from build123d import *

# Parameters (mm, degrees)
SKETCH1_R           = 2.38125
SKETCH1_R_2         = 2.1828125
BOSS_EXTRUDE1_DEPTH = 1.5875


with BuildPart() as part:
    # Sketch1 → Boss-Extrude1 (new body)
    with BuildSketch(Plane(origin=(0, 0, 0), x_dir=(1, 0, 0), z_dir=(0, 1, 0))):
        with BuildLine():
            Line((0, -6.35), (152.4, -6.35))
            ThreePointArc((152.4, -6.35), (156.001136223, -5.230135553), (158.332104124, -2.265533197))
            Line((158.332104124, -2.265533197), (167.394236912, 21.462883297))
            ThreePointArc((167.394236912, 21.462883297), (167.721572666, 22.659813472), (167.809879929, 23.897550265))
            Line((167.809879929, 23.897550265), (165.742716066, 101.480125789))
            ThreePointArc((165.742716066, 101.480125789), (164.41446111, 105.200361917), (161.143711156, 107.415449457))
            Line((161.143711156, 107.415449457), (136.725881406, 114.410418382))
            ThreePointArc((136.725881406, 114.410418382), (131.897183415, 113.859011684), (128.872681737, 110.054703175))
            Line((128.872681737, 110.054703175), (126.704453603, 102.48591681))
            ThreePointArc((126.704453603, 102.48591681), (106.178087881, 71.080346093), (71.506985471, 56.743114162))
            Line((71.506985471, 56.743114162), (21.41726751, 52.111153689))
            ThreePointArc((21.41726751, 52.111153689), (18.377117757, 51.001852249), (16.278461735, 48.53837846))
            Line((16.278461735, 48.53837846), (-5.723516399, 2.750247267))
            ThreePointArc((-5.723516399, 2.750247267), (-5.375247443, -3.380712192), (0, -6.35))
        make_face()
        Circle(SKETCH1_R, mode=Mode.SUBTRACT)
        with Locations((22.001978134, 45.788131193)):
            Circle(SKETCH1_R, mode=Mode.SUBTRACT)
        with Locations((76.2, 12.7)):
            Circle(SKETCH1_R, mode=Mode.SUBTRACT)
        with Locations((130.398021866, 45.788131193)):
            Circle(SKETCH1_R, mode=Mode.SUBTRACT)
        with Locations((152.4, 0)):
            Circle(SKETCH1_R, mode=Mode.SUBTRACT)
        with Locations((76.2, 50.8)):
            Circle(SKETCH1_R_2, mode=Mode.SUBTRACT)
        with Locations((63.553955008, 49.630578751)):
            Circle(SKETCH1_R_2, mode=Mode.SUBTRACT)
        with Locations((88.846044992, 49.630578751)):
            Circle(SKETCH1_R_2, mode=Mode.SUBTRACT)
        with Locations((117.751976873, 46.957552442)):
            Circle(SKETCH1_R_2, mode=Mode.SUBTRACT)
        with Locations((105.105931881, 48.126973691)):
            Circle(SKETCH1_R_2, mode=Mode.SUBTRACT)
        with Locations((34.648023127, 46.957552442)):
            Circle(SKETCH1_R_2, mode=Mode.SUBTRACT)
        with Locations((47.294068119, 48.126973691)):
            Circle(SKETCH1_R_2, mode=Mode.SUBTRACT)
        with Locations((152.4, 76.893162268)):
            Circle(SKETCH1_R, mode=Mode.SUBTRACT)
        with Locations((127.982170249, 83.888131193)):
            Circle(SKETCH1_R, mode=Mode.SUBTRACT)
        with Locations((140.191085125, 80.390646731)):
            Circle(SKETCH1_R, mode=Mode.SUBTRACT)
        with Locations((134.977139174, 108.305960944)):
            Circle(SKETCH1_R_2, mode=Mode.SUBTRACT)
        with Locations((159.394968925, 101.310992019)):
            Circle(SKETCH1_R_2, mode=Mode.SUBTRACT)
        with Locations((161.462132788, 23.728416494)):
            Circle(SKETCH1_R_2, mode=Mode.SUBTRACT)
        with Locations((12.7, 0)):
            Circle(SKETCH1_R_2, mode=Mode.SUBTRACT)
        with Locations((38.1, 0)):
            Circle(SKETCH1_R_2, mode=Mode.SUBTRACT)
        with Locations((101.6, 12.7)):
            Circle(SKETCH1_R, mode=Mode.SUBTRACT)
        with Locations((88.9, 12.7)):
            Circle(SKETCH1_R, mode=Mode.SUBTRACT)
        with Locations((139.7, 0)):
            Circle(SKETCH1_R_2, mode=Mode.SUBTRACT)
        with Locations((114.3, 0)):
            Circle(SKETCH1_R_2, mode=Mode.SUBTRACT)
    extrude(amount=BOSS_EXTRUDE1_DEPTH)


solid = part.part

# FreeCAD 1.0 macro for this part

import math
import FreeCAD as App
import Part
import Sketcher

V = App.Vector
Q = App.Units.Quantity

doc = App.newDocument("Part")
body = doc.addObject("PartDesign::Body", "Body")

# Sketch on XZ plane
sketch1 = body.newObject("Sketcher::SketchObject", "Sketch")
sketch1.AttachmentSupport = (doc.getObject("XZ_Plane"), [""])
sketch1.MapMode = "FlatFace"
sketch1.addGeometry([
    Part.LineSegment(V(0, 6.3, 0), V(152.4, 6.3, 0)),  # 0
    Part.ArcOfCircle(Part.Circle(V(152.4, 0, 0), V(0, 0, 1), 6.4), math.radians(21), math.radians(90)),  # 1
    Part.LineSegment(V(158.3, 2.3, 0), V(167.4, -21.5, 0)),  # 2
    Part.ArcOfCircle(Part.Circle(V(161.5, -23.7, 0), V(0, 0, 1), 6.3), math.radians(-2), math.radians(21)),  # 3
    Part.LineSegment(V(167.8, -23.9, 0), V(165.7, -101.5, 0)),  # 4
    Part.ArcOfCircle(Part.Circle(V(159.4, -101.3, 0), V(0, 0, 1), 6.4), math.radians(-74), math.radians(-2)),  # 5
    Part.LineSegment(V(161.1, -107.4, 0), V(136.7, -114.4, 0)),  # 6
    Part.ArcOfCircle(Part.Circle(V(135, -108.3, 0), V(0, 0, 1), 6.3), math.radians(-164), math.radians(-74)),  # 7
    Part.LineSegment(V(128.9, -110.1, 0), V(126.7, -102.5, 0)),  # 8
    Part.ArcOfCircle(Part.Circle(V(65.7, -120, 0), V(0, 0, 1), 63.5), math.radians(16), math.radians(85)),  # 9
    Part.LineSegment(V(71.5, -56.7, 0), V(21.4, -52.1, 0)),  # 10
    Part.ArcOfCircle(Part.Circle(V(22, -45.8, 0), V(0, 0, 1), 6.3), math.radians(-154), math.radians(-95)),  # 11
    Part.LineSegment(V(16.3, -48.5, 0), V(-5.7, -2.8, 0)),  # 12
    Part.ArcOfCircle(Part.Circle(V(0, 0, 0), V(0, 0, 1), 6.3), math.radians(90), math.radians(206)),  # 13
    Part.Circle(V(0, 0, 0), V(0, 0, 1), 2.4),  # 14
    Part.Circle(V(12.7, 0, 0), V(0, 0, 1), 2.2),  # 15
    Part.Circle(V(38.1, 0, 0), V(0, 0, 1), 2.2),  # 16
    Part.Circle(V(76.2, -12.7, 0), V(0, 0, 1), 2.4),  # 17
    Part.Circle(V(22, -45.8, 0), V(0, 0, 1), 2.4),  # 18
    Part.Circle(V(34.6, -47, 0), V(0, 0, 1), 2.2),  # 19
    Part.Circle(V(47.3, -48.1, 0), V(0, 0, 1), 2.2),  # 20
    Part.Circle(V(63.6, -49.6, 0), V(0, 0, 1), 2.2),  # 21
    Part.Circle(V(76.2, -50.8, 0), V(0, 0, 1), 2.2),  # 22
    Part.Circle(V(114.3, 0, 0), V(0, 0, 1), 2.2),  # 23
    Part.Circle(V(88.9, -12.7, 0), V(0, 0, 1), 2.4),  # 24
    Part.Circle(V(101.6, -12.7, 0), V(0, 0, 1), 2.4),  # 25
    Part.Circle(V(139.7, 0, 0), V(0, 0, 1), 2.2),  # 26
    Part.Circle(V(152.4, 0, 0), V(0, 0, 1), 2.4),  # 27
    Part.Circle(V(161.5, -23.7, 0), V(0, 0, 1), 2.2),  # 28
    Part.Circle(V(88.8, -49.6, 0), V(0, 0, 1), 2.2),  # 29
    Part.Circle(V(117.8, -47, 0), V(0, 0, 1), 2.2),  # 30
    Part.Circle(V(105.1, -48.1, 0), V(0, 0, 1), 2.2),  # 31
    Part.Circle(V(130.4, -45.8, 0), V(0, 0, 1), 2.4),  # 32
    Part.Circle(V(140.2, -80.4, 0), V(0, 0, 1), 2.4),  # 33
    Part.Circle(V(152.4, -76.9, 0), V(0, 0, 1), 2.4),  # 34
    Part.Circle(V(128, -83.9, 0), V(0, 0, 1), 2.4),  # 35
    Part.Circle(V(135, -108.3, 0), V(0, 0, 1), 2.2),  # 36
    Part.Circle(V(159.4, -101.3, 0), V(0, 0, 1), 2.2),  # 37
], False)
sketch1.addConstraint([
    Sketcher.Constraint("Tangent", 0, 2, 1, 2),
    Sketcher.Constraint("Tangent", 1, 1, 2, 1),
    Sketcher.Constraint("Tangent", 2, 2, 3, 2),
    Sketcher.Constraint("Tangent", 3, 1, 4, 1),
    Sketcher.Constraint("Tangent", 4, 2, 5, 2),
    Sketcher.Constraint("Tangent", 5, 1, 6, 1),
    Sketcher.Constraint("Tangent", 6, 2, 7, 2),
    Sketcher.Constraint("Tangent", 7, 1, 8, 1),
    Sketcher.Constraint("Tangent", 8, 2, 9, 1),
    Sketcher.Constraint("Tangent", 9, 2, 10, 1),
    Sketcher.Constraint("Tangent", 10, 2, 11, 2),
    Sketcher.Constraint("Tangent", 11, 1, 12, 1),
    Sketcher.Constraint("Tangent", 12, 2, 13, 2),
    Sketcher.Constraint("Tangent", 13, 1, 0, 1),
    Sketcher.Constraint("Horizontal", 0),
    Sketcher.Constraint("Coincident", 13, 3, -1, 1),
    Sketcher.Constraint("Coincident", 14, 3, -1, 1),
    Sketcher.Constraint("Coincident", 18, 3, 11, 3),
    Sketcher.Constraint("Coincident", 27, 3, 1, 3),
    Sketcher.Constraint("Coincident", 28, 3, 3, 3),
    Sketcher.Constraint("Coincident", 36, 3, 7, 3),
    Sketcher.Constraint("Coincident", 37, 3, 5, 3),
    Sketcher.Constraint("Equal", 1, 3),
    Sketcher.Constraint("Equal", 3, 5),
    Sketcher.Constraint("Equal", 5, 7),
    Sketcher.Constraint("Equal", 7, 11),
    Sketcher.Constraint("Equal", 11, 13),
    Sketcher.Constraint("Equal", 15, 16),
    Sketcher.Constraint("Equal", 14, 17),
    Sketcher.Constraint("Equal", 17, 18),
    Sketcher.Constraint("Equal", 16, 19),
    Sketcher.Constraint("Equal", 19, 20),
    Sketcher.Constraint("Equal", 20, 21),
    Sketcher.Constraint("Equal", 21, 22),
    Sketcher.Constraint("Equal", 22, 23),
    Sketcher.Constraint("Equal", 18, 24),
    Sketcher.Constraint("Equal", 24, 25),
    Sketcher.Constraint("Equal", 23, 26),
    Sketcher.Constraint("Equal", 25, 27),
    Sketcher.Constraint("Equal", 26, 28),
    Sketcher.Constraint("Equal", 28, 29),
    Sketcher.Constraint("Equal", 29, 30),
    Sketcher.Constraint("Equal", 30, 31),
    Sketcher.Constraint("Equal", 27, 32),
    Sketcher.Constraint("Equal", 32, 33),
    Sketcher.Constraint("Equal", 33, 34),
    Sketcher.Constraint("Equal", 34, 35),
    Sketcher.Constraint("Equal", 31, 36),
    Sketcher.Constraint("Equal", 36, 37),
    Sketcher.Constraint("PointOnObject", 15, 3, -1),
    Sketcher.Constraint("PointOnObject", 16, 3, -1),
    Sketcher.Constraint("PointOnObject", 23, 3, -1),
    Sketcher.Constraint("PointOnObject", 26, 3, -1),
    Sketcher.Constraint("Perpendicular", 6, 8),
    Sketcher.Constraint("Horizontal", 17, 3, 24, 3),
    Sketcher.Constraint("Horizontal", 24, 3, 25, 3),
    Sketcher.Constraint("Horizontal", 21, 3, 29, 3),
    Sketcher.Constraint("Horizontal", 19, 3, 30, 3),
    Sketcher.Constraint("Horizontal", 20, 3, 31, 3),
    Sketcher.Constraint("Horizontal", 18, 3, 32, 3),
    Sketcher.Constraint("Vertical", 17, 3, 22, 3),
    Sketcher.Constraint("Vertical", 27, 3, 34, 3),
    Sketcher.Constraint("Equal", 2, 6),
    Sketcher.Constraint("Radius", 9, Q("2.5 in")),
    Sketcher.Constraint("DistanceX", 0, 1, 0, 2, Q("6 in")),
    Sketcher.Constraint("Radius", 1, Q("0.25 in")),
    Sketcher.Constraint("Distance", 2, Q("1 in")),
    Sketcher.Constraint("Distance", 12, Q("2 in")),
    Sketcher.Constraint("Diameter", 14, Q("0.1875 in")),
    Sketcher.Constraint("Diameter", 15, Q("0.171875 in")),
    Sketcher.Constraint("DistanceX", -1, 1, 17, 3, Q("3 in")),
    Sketcher.Constraint("DistanceY", 22, 3, -1, 1, Q("2 in")),
    Sketcher.Constraint("DistanceX", -1, 1, 25, 3, Q("4 in")),
    Sketcher.Constraint("DistanceX", 15, 3, 16, 3, Q("1 in")),
    Sketcher.Constraint("DistanceX", 24, 3, 23, 3, Q("1 in")),
    Sketcher.Constraint("DistanceX", 16, 3, 24, 3, Q("2 in")),
    Sketcher.Constraint("DistanceX", 23, 3, 26, 3, Q("1 in")),
    Sketcher.Constraint("DistanceX", -1, 1, 15, 3, Q("0.5 in")),
    Sketcher.Constraint("DistanceY", 17, 3, -1, 1, Q("0.5 in")),
    Sketcher.Constraint("DistanceY", 35, 3, 32, 3, Q("1.5 in")),
    Sketcher.Constraint("DistanceX", 11, 3, 9, 3, 43.657901),
    Sketcher.Constraint("DistanceY", 7, 3, 34, 3, 31.412799),
    Sketcher.Constraint("DistanceX", 35, 3, 5, 3, 31.412799),
    Sketcher.Constraint("DistanceX", 7, 1, 6, 2, 7.8532),
    Sketcher.Constraint("DistanceY", 6, 2, 8, 2, 11.924502),
    Sketcher.Constraint("DistanceY", 10, 2, 19, 3, 5.153601),
    Sketcher.Constraint("DistanceX", 10, 2, 20, 3, 25.876801),
    Sketcher.Constraint("Distance", 4, 77.61011),
    Sketcher.Constraint("Distance", 10, 50.303428),
    Sketcher.Constraint("DistanceX", -1, 1, 5, 3, 159.394969),
    Sketcher.Constraint("DistanceY", 21, 3, -1, 1, 49.630579),
    Sketcher.Constraint("DistanceX", -1, 1, 31, 3, 105.105932),
    Sketcher.Constraint("DistanceX", -1, 1, 32, 3, 130.398022),
    Sketcher.Constraint("DistanceY", 20, 3, 19, 3, 1.169421),
    Sketcher.Constraint("DistanceX", 19, 3, 21, 3, 28.905932),
    Sketcher.Constraint("DistanceX", 21, 3, 29, 3, 25.29209),
    Sketcher.Constraint("DistanceX", 29, 3, 30, 3, 28.905932),
    Sketcher.Constraint("DistanceX", 30, 3, 33, 3, 22.439108),
    Sketcher.Constraint("DistanceX", 21, 3, 9, 2, 7.95303),
    Sketcher.Constraint("DistanceY", 33, 3, -1, 1, 80.390647),
])
pad1 = body.newObject("PartDesign::Pad", "Pad")
pad1.Profile = sketch1
pad1.Length = Q("0.0625 in")
pad1.Reversed = True

doc.recompute()
